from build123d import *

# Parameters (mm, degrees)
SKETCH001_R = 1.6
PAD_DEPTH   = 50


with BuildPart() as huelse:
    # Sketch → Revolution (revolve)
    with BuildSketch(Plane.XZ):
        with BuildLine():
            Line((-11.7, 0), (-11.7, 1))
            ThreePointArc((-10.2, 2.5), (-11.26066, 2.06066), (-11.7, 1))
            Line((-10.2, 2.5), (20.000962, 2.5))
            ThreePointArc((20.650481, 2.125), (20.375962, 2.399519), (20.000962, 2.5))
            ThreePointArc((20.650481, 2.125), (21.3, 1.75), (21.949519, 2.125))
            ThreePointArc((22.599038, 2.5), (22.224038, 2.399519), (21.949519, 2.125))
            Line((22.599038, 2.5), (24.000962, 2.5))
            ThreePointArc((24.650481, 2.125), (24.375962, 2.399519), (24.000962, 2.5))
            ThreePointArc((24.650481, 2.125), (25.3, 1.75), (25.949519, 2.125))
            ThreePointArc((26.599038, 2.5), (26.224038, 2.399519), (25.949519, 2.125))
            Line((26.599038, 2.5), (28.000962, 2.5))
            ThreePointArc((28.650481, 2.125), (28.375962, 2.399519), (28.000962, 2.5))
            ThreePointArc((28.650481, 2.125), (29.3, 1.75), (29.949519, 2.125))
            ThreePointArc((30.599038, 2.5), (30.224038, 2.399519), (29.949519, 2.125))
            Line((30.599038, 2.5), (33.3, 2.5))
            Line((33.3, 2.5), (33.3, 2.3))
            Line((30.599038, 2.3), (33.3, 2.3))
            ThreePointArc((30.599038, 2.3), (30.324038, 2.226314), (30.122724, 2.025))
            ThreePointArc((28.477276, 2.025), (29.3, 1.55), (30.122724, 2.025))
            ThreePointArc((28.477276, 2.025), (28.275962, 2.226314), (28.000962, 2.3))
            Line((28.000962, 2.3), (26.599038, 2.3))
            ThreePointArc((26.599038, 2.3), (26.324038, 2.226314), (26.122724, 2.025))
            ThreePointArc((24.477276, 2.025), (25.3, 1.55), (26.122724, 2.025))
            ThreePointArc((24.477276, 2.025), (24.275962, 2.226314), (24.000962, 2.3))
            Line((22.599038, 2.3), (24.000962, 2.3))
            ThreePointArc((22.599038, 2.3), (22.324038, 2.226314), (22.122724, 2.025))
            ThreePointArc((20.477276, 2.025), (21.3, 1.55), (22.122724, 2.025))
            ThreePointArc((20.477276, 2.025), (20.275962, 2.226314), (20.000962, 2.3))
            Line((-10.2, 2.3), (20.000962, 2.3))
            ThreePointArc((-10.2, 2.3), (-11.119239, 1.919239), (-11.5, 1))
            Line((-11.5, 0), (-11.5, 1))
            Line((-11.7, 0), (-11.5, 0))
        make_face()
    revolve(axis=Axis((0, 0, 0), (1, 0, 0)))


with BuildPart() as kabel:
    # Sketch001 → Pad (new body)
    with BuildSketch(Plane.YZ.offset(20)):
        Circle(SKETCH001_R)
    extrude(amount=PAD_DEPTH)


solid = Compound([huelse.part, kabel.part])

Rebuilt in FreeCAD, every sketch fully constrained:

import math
import FreeCAD as App
import Part
import Sketcher

doc = App.newDocument("Part")
body = doc.addObject("PartDesign::Body", "Body")

# Sketch on XZ plane
sketch1 = doc.addObject("Sketcher::SketchObject", "Sketch")
body.addObject(sketch1)
sketch1.AttachmentSupport = (doc.XZ_Plane, [""])
sketch1.MapMode = "FlatFace"
sketch1.addGeometry([
    Part.LineSegment(App.Vector(-11.7, 1, 0), App.Vector(-11.7, 0, 0)),  # 0
    Part.LineSegment(App.Vector(-11.7, 0, 0), App.Vector(-11.5, 0, 0)),  # 1
    Part.LineSegment(App.Vector(-11.5, 0, 0), App.Vector(-11.5, 1, 0)),  # 2
    Part.ArcOfCircle(Part.Circle(App.Vector(-10.2, 1, 0), App.Vector(0, 0, 1), 1.3), math.radians(90), math.radians(180)),  # 3
    Part.LineSegment(App.Vector(-10.2, 2.3, 0), App.Vector(20, 2.3, 0)),  # 4
    Part.ArcOfCircle(Part.Circle(App.Vector(20, 1.75, 0), App.Vector(0, 0, 1), 0.55), math.radians(30), math.radians(90)),  # 5
    Part.ArcOfCircle(Part.Circle(App.Vector(21.3, 2.5, 0), App.Vector(0, 0, 1), 0.95), math.radians(-150), math.radians(-30)),  # 6
    Part.ArcOfCircle(Part.Circle(App.Vector(22.6, 1.75, 0), App.Vector(0, 0, 1), 0.55), math.radians(90), math.radians(150)),  # 7
    Part.LineSegment(App.Vector(22.6, 2.3, 0), App.Vector(24, 2.3, 0)),  # 8
    Part.ArcOfCircle(Part.Circle(App.Vector(24, 1.75, 0), App.Vector(0, 0, 1), 0.55), math.radians(30), math.radians(90)),  # 9
    Part.ArcOfCircle(Part.Circle(App.Vector(25.3, 2.5, 0), App.Vector(0, 0, 1), 0.95), math.radians(-150), math.radians(-30)),  # 10
    Part.ArcOfCircle(Part.Circle(App.Vector(26.6, 1.75, 0), App.Vector(0, 0, 1), 0.55), math.radians(90), math.radians(150)),  # 11
    Part.LineSegment(App.Vector(26.6, 2.3, 0), App.Vector(28, 2.3, 0)),  # 12
    Part.ArcOfCircle(Part.Circle(App.Vector(28, 1.75, 0), App.Vector(0, 0, 1), 0.55), math.radians(30), math.radians(90)),  # 13
    Part.ArcOfCircle(Part.Circle(App.Vector(29.3, 2.5, 0), App.Vector(0, 0, 1), 0.95), math.radians(-150), math.radians(-30)),  # 14
    Part.ArcOfCircle(Part.Circle(App.Vector(30.6, 1.75, 0), App.Vector(0, 0, 1), 0.55), math.radians(90), math.radians(150)),  # 15
    Part.LineSegment(App.Vector(30.6, 2.3, 0), App.Vector(33.3, 2.3, 0)),  # 16
    Part.LineSegment(App.Vector(33.3, 2.3, 0), App.Vector(33.3, 2.5, 0)),  # 17
    Part.LineSegment(App.Vector(33.3, 2.5, 0), App.Vector(30.6, 2.5, 0)),  # 18
    Part.ArcOfCircle(Part.Circle(App.Vector(30.6, 1.75, 0), App.Vector(0, 0, 1), 0.75), math.radians(90), math.radians(150)),  # 19
    Part.ArcOfCircle(Part.Circle(App.Vector(29.3, 2.5, 0), App.Vector(0, 0, 1), 0.75), math.radians(-150), math.radians(-30)),  # 20
    Part.ArcOfCircle(Part.Circle(App.Vector(28, 1.75, 0), App.Vector(0, 0, 1), 0.75), math.radians(30), math.radians(90)),  # 21
    Part.LineSegment(App.Vector(28, 2.5, 0), App.Vector(26.6, 2.5, 0)),  # 22
    Part.ArcOfCircle(Part.Circle(App.Vector(26.6, 1.75, 0), App.Vector(0, 0, 1), 0.75), math.radians(90), math.radians(150)),  # 23
    Part.ArcOfCircle(Part.Circle(App.Vector(25.3, 2.5, 0), App.Vector(0, 0, 1), 0.75), math.radians(-150), math.radians(-30)),  # 24
    Part.ArcOfCircle(Part.Circle(App.Vector(24, 1.75, 0), App.Vector(0, 0, 1), 0.75), math.radians(30), math.radians(90)),  # 25
    Part.LineSegment(App.Vector(24, 2.5, 0), App.Vector(22.6, 2.5, 0)),  # 26
    Part.ArcOfCircle(Part.Circle(App.Vector(22.6, 1.75, 0), App.Vector(0, 0, 1), 0.75), math.radians(90), math.radians(150)),  # 27
    Part.ArcOfCircle(Part.Circle(App.Vector(21.3, 2.5, 0), App.Vector(0, 0, 1), 0.75), math.radians(-150), math.radians(-30)),  # 28
    Part.ArcOfCircle(Part.Circle(App.Vector(20, 1.75, 0), App.Vector(0, 0, 1), 0.75), math.radians(30), math.radians(90)),  # 29
    Part.LineSegment(App.Vector(20, 2.5, 0), App.Vector(-10.2, 2.5, 0)),  # 30
    Part.ArcOfCircle(Part.Circle(App.Vector(-10.2, 1, 0), App.Vector(0, 0, 1), 1.5), math.radians(90), math.radians(180)),  # 31
], False)
sketch1.addConstraint([
    Sketcher.Constraint("Coincident", 0, 2, 1, 1),
    Sketcher.Constraint("Coincident", 1, 2, 2, 1),
    Sketcher.Constraint("Tangent", 2, 2, 3, 2),
    Sketcher.Constraint("Tangent", 3, 1, 4, 1),
    Sketcher.Constraint("Tangent", 4, 2, 5, 2),
    Sketcher.Constraint("Tangent", 5, 1, 6, 1),
    Sketcher.Constraint("Tangent", 6, 2, 7, 2),
    Sketcher.Constraint("Tangent", 7, 1, 8, 1),
    Sketcher.Constraint("Tangent", 8, 2, 9, 2),
    Sketcher.Constraint("Tangent", 9, 1, 10, 1),
    Sketcher.Constraint("Tangent", 10, 2, 11, 2),
    Sketcher.Constraint("Tangent", 11, 1, 12, 1),
    Sketcher.Constraint("Tangent", 12, 2, 13, 2),
    Sketcher.Constraint("Tangent", 13, 1, 14, 1),
    Sketcher.Constraint("Tangent", 14, 2, 15, 2),
    Sketcher.Constraint("Tangent", 15, 1, 16, 1),
    Sketcher.Constraint("Coincident", 16, 2, 17, 1),
    Sketcher.Constraint("Coincident", 17, 2, 18, 1),
    Sketcher.Constraint("Tangent", 18, 2, 19, 1),
    Sketcher.Constraint("Tangent", 19, 2, 20, 2),
    Sketcher.Constraint("Tangent", 20, 1, 21, 1),
    Sketcher.Constraint("Tangent", 21, 2, 22, 1),
    Sketcher.Constraint("Tangent", 22, 2, 23, 1),
    Sketcher.Constraint("Tangent", 23, 2, 24, 2),
    Sketcher.Constraint("Tangent", 24, 1, 25, 1),
    Sketcher.Constraint("Tangent", 25, 2, 26, 1),
    Sketcher.Constraint("Tangent", 26, 2, 27, 1),
    Sketcher.Constraint("Tangent", 27, 2, 28, 2),
    Sketcher.Constraint("Tangent", 28, 1, 29, 1),
    Sketcher.Constraint("Tangent", 29, 2, 30, 1),
    Sketcher.Constraint("Tangent", 30, 2, 31, 1),
    Sketcher.Constraint("Tangent", 31, 2, 0, 1),
    Sketcher.Constraint("Vertical", 0),
    Sketcher.Constraint("Horizontal", 1),
    Sketcher.Constraint("Vertical", 2),
    Sketcher.Constraint("Horizontal", 4),
    Sketcher.Constraint("Horizontal", 8),
    Sketcher.Constraint("Horizontal", 12),
    Sketcher.Constraint("Horizontal", 16),
    Sketcher.Constraint("Vertical", 17),
    Sketcher.Constraint("Horizontal", 18),
    Sketcher.Constraint("Horizontal", 22),
    Sketcher.Constraint("Horizontal", 26),
    Sketcher.Constraint("Horizontal", 30),
    Sketcher.Constraint("Coincident", 19, 3, 15, 3),
    Sketcher.Constraint("Coincident", 20, 3, 14, 3),
    Sketcher.Constraint("Coincident", 21, 3, 13, 3),
    Sketcher.Constraint("Coincident", 23, 3, 11, 3),
    Sketcher.Constraint("Coincident", 24, 3, 10, 3),
    Sketcher.Constraint("Coincident", 25, 3, 9, 3),
    Sketcher.Constraint("Coincident", 27, 3, 7, 3),
    Sketcher.Constraint("Coincident", 28, 3, 6, 3),
    Sketcher.Constraint("Coincident", 29, 3, 5, 3),
    Sketcher.Constraint("Coincident", 31, 3, 3, 3),
    Sketcher.Constraint("Equal", 5, 7),
    Sketcher.Constraint("Equal", 7, 9),
    Sketcher.Constraint("Equal", 6, 10),
    Sketcher.Constraint("Equal", 9, 11),
    Sketcher.Constraint("Equal", 11, 13),
    Sketcher.Constraint("Equal", 10, 14),
    Sketcher.Constraint("Equal", 13, 15),
    Sketcher.Constraint("Equal", 19, 20),
    Sketcher.Constraint("PointOnObject", 0, 2, -1),
    Sketcher.Constraint("Horizontal", 5, 3, 7, 3),
    Sketcher.Constraint("Horizontal", 6, 3, 10, 3),
    Sketcher.Constraint("Horizontal", 9, 3, 11, 3),
    Sketcher.Constraint("Horizontal", 10, 3, 14, 3),
    Sketcher.Constraint("Horizontal", 13, 3, 15, 3),
    Sketcher.Constraint("Horizontal", 28, 3, 17, 2),
    Sketcher.Constraint("Equal", 8, 12),
    Sketcher.Constraint("Radius", 3, 1.299999),
    Sketcher.Constraint("Radius", 31, 1.500001),
    Sketcher.Constraint("DistanceY", 0, 2, 0, 1, 1.0),
    Sketcher.Constraint("Radius", 5, 0.55),
    Sketcher.Constraint("DistanceX", 5, 3, 9, 3, 4.0),
    Sketcher.Constraint("DistanceX", 0, 2, 6, 3, 33.0),
    Sketcher.Constraint("DistanceX", 14, 3, 16, 2, 4.0),
    Sketcher.Constraint("DistanceX", 3, 3, -1, 1, 10.200001),
])
revolution = doc.addObject("PartDesign::Revolution", "Revolution")
body.addObject(revolution)
revolution.Profile = sketch1
revolution.ReferenceAxis = (sketch1, ["H_Axis"])
revolution.Angle = 360
body2 = doc.addObject("PartDesign::Body", "Body001")

# Sketch on YZ plane
sketch2 = doc.addObject("Sketcher::SketchObject", "Sketch001")
body2.addObject(sketch2)
sketch2.AttachmentSupport = (doc.getObject("YZ_Plane001"), [""])
sketch2.MapMode = "FlatFace"
sketch2.AttachmentOffset = App.Placement(App.Vector(0, 0, 20), App.Rotation())
sketch2.addGeometry(Part.Circle(App.Vector(0, 0, 0), App.Vector(0, 0, 1), 1.6), False)
sketch2.addConstraint([
    Sketcher.Constraint("Coincident", 0, 3, -1, 1),
    Sketcher.Constraint("Diameter", 0, 3.2),
])
pad1 = doc.addObject("PartDesign::Pad", "Pad")
body2.addObject(pad1)
pad1.Profile = sketch2
pad1.Length = 50

doc.recompute()
